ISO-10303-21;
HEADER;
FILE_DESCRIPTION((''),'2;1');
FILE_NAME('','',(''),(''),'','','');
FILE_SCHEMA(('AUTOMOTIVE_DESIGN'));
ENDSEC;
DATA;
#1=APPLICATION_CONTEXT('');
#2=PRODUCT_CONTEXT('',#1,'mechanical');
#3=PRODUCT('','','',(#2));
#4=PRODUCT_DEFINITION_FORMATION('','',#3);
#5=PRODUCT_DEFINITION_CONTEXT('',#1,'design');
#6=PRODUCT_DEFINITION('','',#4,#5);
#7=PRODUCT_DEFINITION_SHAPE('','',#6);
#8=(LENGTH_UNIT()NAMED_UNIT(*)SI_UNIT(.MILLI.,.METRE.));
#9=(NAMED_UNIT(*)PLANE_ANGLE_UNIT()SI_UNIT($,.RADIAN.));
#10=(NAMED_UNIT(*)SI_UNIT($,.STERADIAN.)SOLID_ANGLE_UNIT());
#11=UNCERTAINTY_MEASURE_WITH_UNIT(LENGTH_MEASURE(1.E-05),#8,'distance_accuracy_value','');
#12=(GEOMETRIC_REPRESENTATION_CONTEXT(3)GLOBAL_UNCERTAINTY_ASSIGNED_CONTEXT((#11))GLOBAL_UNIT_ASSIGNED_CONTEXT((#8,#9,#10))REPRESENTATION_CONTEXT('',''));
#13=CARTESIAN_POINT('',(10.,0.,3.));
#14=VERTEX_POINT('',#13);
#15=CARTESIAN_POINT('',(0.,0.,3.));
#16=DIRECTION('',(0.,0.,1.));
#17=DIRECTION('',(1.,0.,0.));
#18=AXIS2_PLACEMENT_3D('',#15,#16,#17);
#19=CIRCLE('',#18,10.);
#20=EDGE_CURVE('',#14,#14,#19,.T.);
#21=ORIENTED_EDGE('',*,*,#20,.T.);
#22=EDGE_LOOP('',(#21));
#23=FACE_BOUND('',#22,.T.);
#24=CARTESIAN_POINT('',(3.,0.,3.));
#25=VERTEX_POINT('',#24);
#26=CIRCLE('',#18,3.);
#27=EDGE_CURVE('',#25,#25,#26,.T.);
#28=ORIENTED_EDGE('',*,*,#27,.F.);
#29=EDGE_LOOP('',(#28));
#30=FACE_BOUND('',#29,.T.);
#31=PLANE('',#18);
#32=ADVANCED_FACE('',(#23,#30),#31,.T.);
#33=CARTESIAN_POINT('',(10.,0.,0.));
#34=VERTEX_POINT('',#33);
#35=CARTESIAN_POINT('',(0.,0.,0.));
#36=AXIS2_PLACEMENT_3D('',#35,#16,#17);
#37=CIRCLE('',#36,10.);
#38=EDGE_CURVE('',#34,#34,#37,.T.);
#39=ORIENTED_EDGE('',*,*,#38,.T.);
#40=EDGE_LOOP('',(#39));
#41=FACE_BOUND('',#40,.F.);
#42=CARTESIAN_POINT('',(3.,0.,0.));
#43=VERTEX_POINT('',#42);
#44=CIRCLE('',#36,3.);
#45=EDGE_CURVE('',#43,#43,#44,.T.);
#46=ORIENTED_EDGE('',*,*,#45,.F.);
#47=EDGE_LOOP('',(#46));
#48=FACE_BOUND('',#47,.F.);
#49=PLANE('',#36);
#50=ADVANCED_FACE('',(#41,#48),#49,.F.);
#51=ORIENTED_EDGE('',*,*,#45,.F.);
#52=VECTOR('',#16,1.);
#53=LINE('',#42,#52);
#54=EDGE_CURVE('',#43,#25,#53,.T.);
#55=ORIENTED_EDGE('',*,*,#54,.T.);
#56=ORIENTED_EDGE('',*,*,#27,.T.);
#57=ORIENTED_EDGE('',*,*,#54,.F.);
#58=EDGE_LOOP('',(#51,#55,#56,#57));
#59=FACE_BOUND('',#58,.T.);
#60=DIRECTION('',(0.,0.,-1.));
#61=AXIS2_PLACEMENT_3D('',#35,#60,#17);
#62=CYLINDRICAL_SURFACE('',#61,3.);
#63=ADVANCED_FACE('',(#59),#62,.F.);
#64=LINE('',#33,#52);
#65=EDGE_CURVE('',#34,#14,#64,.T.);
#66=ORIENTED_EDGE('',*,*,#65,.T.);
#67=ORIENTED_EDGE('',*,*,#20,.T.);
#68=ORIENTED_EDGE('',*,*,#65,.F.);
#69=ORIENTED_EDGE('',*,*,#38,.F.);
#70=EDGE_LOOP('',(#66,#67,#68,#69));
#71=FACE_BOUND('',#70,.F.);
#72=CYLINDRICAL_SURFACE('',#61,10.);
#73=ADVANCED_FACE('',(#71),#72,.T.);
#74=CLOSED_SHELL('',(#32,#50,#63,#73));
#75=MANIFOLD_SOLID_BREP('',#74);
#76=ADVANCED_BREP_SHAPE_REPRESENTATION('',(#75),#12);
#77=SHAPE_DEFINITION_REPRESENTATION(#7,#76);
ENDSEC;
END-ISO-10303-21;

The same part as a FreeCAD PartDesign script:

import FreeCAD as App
import Part
import Sketcher

V = App.Vector

doc = App.newDocument("Part")
params = doc.addObject("Spreadsheet::Sheet", "Params")
for row, (alias, value) in enumerate([
    ("sketch1_diameter", "20 mm"),
    ("sketch1_diameter2", "6 mm"),
    ("pad1_length", "3 mm"),
], start=1):
    params.set(f"A{row}", alias)
    params.set(f"B{row}", "=" + value)
    params.setAlias(f"B{row}", alias)

body = doc.addObject("PartDesign::Body", "Body")

# Sketch on XY plane
sketch1 = body.newObject("Sketcher::SketchObject", "Sketch")
sketch1.AttachmentSupport = (doc.getObject("XY_Plane"), [""])
sketch1.MapMode = "FlatFace"
sketch1.addGeometry([
    Part.Circle(V(0, 0, 0), V(0, 0, 1), 10),
    Part.Circle(V(0, 0, 0), V(0, 0, 1), 3),
], False)
sketch1.addConstraint([
    Sketcher.Constraint("Coincident", 0, 3, -1, 1),
    Sketcher.Constraint("Coincident", 1, 3, -1, 1),
    Sketcher.Constraint("Diameter", 0, 20.0),
    Sketcher.Constraint("Diameter", 1, 6.0),
])
sketch1.setExpression("Constraints[2]", "Params.sketch1_diameter")
sketch1.setExpression("Constraints[3]", "Params.sketch1_diameter2")
pad1 = body.newObject("PartDesign::Pad", "Pad")
pad1.Profile = sketch1
pad1.setExpression("Length", "Params.pad1_length")

doc.recompute()
